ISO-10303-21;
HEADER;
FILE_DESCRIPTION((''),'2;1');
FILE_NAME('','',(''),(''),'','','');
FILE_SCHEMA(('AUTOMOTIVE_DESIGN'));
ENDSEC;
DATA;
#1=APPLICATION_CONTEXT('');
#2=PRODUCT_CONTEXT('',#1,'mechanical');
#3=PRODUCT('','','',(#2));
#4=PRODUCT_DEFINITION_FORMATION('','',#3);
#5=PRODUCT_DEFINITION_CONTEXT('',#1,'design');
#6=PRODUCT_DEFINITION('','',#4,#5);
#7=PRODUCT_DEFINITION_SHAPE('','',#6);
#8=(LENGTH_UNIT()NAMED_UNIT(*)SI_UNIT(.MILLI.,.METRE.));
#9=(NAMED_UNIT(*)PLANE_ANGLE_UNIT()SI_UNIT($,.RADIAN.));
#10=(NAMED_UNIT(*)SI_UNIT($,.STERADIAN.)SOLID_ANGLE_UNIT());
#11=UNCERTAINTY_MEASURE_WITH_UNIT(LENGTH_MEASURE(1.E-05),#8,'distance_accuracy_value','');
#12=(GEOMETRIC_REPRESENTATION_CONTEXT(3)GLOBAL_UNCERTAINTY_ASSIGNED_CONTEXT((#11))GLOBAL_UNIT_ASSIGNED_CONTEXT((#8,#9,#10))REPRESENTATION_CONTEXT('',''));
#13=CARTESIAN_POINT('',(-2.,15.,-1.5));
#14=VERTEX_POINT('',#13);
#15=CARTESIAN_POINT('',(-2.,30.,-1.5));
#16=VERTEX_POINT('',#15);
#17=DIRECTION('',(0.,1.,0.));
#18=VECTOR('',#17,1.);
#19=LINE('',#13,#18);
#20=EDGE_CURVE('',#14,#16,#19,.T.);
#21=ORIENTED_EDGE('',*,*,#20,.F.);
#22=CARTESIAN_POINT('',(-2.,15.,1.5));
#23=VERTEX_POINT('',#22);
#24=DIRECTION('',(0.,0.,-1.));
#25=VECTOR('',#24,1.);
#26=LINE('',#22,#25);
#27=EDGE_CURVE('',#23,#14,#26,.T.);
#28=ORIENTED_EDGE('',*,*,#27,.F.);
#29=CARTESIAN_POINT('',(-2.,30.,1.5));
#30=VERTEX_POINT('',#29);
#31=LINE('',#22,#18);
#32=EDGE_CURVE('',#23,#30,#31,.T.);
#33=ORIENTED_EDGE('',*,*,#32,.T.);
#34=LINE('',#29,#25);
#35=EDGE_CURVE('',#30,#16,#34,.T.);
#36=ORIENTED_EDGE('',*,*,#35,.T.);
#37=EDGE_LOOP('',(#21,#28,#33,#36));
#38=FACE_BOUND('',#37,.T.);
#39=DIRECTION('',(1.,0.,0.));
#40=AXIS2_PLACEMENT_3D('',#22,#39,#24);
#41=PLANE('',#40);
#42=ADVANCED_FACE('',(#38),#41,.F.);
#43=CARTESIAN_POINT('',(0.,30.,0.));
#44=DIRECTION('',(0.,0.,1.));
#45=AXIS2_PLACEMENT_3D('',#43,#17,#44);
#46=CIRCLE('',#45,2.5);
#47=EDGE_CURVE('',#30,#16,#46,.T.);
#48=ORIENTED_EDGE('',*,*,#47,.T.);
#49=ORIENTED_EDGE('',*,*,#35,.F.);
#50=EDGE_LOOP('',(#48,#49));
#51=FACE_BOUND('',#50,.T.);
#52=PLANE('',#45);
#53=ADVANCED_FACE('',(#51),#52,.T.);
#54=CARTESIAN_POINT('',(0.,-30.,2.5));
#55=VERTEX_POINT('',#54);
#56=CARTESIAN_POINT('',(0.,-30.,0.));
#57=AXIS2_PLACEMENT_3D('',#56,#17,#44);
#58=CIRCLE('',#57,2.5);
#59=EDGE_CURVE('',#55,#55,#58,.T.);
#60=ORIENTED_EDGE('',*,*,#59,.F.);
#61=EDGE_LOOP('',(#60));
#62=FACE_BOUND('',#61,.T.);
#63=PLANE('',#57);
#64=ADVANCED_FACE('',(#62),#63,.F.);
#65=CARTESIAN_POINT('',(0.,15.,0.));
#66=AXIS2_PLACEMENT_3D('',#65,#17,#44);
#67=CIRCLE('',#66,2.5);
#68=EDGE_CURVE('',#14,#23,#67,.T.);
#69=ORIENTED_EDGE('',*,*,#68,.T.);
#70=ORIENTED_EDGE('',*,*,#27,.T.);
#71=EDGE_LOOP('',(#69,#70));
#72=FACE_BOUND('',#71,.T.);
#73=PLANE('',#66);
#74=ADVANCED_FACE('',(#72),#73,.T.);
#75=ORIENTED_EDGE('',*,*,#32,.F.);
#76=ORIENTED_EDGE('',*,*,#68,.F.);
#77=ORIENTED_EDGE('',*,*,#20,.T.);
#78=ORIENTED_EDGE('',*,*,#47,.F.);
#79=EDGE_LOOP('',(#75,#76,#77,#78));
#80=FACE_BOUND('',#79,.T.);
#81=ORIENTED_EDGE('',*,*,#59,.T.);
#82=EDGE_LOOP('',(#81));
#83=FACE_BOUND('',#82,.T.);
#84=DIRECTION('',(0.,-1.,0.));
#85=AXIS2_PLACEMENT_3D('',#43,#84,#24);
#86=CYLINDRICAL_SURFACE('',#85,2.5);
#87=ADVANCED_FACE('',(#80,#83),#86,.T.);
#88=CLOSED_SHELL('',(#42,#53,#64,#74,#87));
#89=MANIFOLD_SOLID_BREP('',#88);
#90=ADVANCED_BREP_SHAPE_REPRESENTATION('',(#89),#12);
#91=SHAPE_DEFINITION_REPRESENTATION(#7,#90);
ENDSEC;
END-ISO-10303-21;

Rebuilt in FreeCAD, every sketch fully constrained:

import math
import FreeCAD as App
import Part
import Sketcher

doc = App.newDocument("Part")
body = doc.addObject("PartDesign::Body", "Body")

# Sketch on XZ plane
sketch1 = doc.addObject("Sketcher::SketchObject", "Sketch")
body.addObject(sketch1)
sketch1.AttachmentSupport = (doc.XZ_Plane, [""])
sketch1.MapMode = "FlatFace"
sketch1.addGeometry(Part.Circle(App.Vector(0, 0, 0), App.Vector(0, 0, 1), 2.5), False)
sketch1.addConstraint([
    Sketcher.Constraint("Coincident", 0, 3, -1, 1),
    Sketcher.Constraint("Diameter", 0, 5.0),
])
pad1 = doc.addObject("PartDesign::Pad", "Pad")
body.addObject(pad1)
pad1.Profile = sketch1
pad1.Length = 60
pad1.Midplane = True

# Sketch on XZ plane
sketch2 = doc.addObject("Sketcher::SketchObject", "Sketch001")
body.addObject(sketch2)
sketch2.AttachmentSupport = (doc.XZ_Plane, [""])
sketch2.MapMode = "FlatFace"
sketch2.AttachmentOffset = App.Placement(App.Vector(0, 0, -30), App.Rotation())
sketch2.addGeometry([
    Part.LineSegment(App.Vector(-2, 1.5, 0), App.Vector(-2, -1.5, 0)),
    Part.ArcOfCircle(Part.Circle(App.Vector(0, 0, 0), App.Vector(0, 0, 1), 2.5), math.radians(143), math.radians(217)),
], False)
sketch2.addConstraint([
    Sketcher.Constraint("Coincident", 0, 1, 1, 1),
    Sketcher.Constraint("Coincident", 1, 2, 0, 2),
    Sketcher.Constraint("Vertical", 0),
    Sketcher.Constraint("Coincident", 1, 3, -1, 1),
    Sketcher.Constraint("Radius", 1, 2.5),
    Sketcher.Constraint("DistanceY", 0, 2, 0, 1, 3.0),
])
pocket1 = doc.addObject("PartDesign::Pocket", "Pocket")
body.addObject(pocket1)
pocket1.Profile = sketch2
pocket1.Length = 15
pocket1.Reversed = True

doc.recompute()
